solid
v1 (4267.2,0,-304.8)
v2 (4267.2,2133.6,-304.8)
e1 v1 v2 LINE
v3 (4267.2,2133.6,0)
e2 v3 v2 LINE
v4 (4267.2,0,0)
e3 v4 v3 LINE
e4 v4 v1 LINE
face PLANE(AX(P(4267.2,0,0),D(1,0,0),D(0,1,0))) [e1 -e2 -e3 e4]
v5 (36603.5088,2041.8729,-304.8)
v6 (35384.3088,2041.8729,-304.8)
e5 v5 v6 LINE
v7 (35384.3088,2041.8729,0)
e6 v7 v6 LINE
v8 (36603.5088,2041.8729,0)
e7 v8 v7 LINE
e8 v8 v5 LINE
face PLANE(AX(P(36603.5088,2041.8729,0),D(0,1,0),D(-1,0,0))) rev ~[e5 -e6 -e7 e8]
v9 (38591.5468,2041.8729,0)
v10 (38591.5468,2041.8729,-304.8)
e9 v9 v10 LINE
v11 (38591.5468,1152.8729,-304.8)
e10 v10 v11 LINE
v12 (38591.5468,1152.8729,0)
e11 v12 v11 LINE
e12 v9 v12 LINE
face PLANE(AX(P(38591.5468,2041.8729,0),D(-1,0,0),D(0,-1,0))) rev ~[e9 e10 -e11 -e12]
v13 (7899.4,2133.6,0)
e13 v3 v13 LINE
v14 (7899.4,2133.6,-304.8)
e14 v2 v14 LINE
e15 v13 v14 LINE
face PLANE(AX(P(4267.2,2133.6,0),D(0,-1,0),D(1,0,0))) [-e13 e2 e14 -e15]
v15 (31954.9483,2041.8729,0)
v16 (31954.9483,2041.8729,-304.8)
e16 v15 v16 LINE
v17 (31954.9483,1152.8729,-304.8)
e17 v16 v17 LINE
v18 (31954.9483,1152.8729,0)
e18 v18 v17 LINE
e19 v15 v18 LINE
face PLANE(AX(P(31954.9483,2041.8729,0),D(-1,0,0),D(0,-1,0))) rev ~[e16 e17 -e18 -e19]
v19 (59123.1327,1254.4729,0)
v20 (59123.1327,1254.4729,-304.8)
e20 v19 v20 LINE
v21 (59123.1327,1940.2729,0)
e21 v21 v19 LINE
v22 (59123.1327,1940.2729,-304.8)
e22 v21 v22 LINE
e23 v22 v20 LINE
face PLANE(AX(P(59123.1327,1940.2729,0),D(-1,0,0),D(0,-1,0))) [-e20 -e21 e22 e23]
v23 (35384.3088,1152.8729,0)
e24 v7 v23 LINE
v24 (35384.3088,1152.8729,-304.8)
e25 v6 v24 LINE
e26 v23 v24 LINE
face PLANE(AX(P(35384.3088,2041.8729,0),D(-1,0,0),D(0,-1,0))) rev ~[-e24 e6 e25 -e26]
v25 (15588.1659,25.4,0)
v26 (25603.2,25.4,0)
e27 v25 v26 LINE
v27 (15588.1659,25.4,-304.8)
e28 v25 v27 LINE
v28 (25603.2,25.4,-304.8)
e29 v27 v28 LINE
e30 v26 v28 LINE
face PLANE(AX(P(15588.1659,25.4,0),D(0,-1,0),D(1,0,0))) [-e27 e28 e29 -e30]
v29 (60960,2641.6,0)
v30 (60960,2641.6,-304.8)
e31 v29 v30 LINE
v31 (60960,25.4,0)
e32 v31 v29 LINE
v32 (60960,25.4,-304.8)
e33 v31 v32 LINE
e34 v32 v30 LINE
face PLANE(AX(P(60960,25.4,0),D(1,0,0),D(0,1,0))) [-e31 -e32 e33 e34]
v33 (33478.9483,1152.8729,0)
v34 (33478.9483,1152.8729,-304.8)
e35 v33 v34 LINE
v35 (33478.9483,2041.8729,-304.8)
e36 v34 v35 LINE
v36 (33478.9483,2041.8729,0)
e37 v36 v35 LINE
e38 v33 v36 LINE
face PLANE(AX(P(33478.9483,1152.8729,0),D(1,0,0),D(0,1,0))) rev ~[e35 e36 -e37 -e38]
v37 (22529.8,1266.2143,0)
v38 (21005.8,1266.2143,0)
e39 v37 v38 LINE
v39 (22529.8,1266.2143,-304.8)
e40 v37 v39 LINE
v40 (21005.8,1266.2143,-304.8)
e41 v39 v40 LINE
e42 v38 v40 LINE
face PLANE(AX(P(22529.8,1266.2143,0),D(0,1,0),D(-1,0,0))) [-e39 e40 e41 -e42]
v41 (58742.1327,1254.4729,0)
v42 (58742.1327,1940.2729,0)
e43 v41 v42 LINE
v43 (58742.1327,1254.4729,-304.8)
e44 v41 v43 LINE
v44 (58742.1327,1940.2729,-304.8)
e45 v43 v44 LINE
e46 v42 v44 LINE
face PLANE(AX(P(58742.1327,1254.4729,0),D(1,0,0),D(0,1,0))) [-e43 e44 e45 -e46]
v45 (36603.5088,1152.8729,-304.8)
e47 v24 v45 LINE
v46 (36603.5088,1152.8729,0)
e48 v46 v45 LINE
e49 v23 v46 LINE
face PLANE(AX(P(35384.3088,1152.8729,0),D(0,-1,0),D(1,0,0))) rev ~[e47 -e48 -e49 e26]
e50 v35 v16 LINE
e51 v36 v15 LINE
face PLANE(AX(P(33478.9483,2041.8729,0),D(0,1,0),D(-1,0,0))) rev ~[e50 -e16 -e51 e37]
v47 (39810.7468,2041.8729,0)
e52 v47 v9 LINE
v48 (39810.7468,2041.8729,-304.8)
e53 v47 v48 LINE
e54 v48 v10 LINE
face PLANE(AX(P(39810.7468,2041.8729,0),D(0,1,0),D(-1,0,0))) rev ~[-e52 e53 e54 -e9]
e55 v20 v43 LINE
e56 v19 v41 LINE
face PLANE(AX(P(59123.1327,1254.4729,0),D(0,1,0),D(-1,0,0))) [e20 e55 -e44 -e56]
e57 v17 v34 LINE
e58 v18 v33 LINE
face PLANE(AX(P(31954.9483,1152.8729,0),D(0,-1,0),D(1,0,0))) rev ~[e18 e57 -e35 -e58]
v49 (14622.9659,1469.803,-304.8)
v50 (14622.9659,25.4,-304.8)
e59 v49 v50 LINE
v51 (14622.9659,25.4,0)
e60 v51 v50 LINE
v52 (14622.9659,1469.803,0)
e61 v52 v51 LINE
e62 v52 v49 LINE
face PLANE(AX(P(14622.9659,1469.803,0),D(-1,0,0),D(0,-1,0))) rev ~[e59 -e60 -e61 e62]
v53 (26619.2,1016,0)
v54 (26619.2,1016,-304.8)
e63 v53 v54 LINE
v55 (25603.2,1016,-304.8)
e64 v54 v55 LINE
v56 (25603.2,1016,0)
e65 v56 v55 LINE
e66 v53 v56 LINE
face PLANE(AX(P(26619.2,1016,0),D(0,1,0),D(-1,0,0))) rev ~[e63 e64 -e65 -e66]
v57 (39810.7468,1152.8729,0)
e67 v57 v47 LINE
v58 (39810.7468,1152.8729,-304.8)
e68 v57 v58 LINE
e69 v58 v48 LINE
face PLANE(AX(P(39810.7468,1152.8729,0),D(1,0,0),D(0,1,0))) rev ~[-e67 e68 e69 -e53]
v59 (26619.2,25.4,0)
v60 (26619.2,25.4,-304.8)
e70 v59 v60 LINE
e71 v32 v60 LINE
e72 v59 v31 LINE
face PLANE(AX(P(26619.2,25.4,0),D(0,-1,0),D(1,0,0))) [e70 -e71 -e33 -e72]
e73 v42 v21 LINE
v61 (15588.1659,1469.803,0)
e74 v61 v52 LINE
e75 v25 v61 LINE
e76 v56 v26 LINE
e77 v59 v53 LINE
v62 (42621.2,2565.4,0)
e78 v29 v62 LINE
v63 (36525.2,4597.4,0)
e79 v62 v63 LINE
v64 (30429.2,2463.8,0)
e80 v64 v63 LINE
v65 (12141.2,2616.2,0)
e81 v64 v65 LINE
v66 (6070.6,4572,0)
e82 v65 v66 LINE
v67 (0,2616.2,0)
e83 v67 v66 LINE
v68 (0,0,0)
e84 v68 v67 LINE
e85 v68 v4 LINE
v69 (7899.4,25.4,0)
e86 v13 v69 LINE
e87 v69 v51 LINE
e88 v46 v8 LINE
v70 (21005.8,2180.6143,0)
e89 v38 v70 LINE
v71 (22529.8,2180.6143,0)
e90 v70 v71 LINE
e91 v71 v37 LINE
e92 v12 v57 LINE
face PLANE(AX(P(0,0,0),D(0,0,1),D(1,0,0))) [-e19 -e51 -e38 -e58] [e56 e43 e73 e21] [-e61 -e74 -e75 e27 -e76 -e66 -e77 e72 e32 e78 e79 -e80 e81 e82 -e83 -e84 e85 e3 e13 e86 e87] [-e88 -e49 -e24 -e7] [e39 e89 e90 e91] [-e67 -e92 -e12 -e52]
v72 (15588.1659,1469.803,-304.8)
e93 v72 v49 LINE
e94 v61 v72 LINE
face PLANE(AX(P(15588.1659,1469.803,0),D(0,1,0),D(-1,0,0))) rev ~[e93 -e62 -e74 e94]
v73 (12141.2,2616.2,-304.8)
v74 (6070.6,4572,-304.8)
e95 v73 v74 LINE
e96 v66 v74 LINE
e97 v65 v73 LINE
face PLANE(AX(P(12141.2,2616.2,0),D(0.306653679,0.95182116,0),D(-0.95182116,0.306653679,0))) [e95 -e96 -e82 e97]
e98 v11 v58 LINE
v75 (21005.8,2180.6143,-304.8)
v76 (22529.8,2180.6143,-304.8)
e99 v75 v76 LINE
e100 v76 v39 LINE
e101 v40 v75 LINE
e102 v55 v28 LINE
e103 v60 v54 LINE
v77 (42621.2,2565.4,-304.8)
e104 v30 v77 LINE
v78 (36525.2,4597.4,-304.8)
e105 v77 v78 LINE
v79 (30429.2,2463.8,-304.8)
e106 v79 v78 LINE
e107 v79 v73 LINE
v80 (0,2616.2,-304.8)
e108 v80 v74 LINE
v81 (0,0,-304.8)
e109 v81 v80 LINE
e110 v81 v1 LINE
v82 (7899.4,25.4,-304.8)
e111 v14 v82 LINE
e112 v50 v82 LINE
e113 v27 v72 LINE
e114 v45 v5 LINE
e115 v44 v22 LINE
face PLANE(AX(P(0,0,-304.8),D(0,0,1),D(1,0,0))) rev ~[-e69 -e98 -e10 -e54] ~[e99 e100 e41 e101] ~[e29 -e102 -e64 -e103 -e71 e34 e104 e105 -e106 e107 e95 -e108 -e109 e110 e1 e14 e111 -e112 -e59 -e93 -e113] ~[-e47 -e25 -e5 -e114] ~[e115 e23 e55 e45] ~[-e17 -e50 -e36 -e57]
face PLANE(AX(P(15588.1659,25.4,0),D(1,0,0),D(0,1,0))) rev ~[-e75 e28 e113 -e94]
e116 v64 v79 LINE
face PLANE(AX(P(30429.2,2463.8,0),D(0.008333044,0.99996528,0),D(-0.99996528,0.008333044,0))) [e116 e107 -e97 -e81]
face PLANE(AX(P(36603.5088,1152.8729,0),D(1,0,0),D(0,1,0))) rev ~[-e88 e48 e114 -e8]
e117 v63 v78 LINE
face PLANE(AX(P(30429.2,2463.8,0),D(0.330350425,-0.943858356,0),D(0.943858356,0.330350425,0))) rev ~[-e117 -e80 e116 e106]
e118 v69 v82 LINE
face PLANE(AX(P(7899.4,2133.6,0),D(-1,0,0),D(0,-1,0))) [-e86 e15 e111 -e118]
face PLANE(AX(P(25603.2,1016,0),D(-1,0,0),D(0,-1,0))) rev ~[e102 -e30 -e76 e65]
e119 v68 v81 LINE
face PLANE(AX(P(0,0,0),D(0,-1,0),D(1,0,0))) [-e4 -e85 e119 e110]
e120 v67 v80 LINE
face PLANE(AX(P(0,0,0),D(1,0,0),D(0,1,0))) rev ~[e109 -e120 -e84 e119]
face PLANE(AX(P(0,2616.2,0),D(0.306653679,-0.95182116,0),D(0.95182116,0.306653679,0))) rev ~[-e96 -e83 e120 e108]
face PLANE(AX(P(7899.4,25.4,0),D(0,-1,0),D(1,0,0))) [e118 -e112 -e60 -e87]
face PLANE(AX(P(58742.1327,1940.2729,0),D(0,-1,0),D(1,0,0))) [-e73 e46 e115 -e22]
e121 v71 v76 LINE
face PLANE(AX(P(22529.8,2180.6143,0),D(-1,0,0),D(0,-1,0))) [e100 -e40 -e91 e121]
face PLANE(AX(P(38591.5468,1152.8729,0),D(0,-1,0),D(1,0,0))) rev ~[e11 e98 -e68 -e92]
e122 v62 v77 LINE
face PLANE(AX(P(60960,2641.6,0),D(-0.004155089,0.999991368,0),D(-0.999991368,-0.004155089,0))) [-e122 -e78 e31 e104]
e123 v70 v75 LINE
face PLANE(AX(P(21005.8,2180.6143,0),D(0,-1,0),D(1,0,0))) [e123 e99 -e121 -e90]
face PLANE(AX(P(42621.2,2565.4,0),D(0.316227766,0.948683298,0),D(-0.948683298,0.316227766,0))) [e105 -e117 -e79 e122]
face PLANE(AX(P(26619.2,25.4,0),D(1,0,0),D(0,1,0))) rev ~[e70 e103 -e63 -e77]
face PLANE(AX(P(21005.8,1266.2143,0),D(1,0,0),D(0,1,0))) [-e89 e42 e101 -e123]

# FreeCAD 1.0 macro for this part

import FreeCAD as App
import Part
import Sketcher
Q = App.Units.Quantity

doc = App.newDocument("Part")
body = doc.addObject("PartDesign::Body", "Body")

# Sketch on XY plane
sketch1 = body.newObject("Sketcher::SketchObject", "Sketch")
sketch1.AttachmentSupport = (doc.getObject("XY_Plane"), [""])
sketch1.MapMode = "FlatFace"
sketch1.addGeometry([
    Part.LineSegment(App.Vector(0, 2616, 0), App.Vector(0, 0, 0)),  # 0
    Part.LineSegment(App.Vector(0, 0, 0), App.Vector(4267, 0, 0)),  # 1
    Part.LineSegment(App.Vector(4267, 0, 0), App.Vector(4267, 2134, 0)),  # 2
    Part.LineSegment(App.Vector(4267, 2134, 0), App.Vector(7899, 2134, 0)),  # 3
    Part.LineSegment(App.Vector(7899, 2134, 0), App.Vector(7899, 25, 0)),  # 4
    Part.LineSegment(App.Vector(7899, 25, 0), App.Vector(14623, 25, 0)),  # 5
    Part.LineSegment(App.Vector(14623, 25, 0), App.Vector(14623, 1470, 0)),  # 6
    Part.LineSegment(App.Vector(14623, 1470, 0), App.Vector(15588, 1470, 0)),  # 7
    Part.LineSegment(App.Vector(15588, 1470, 0), App.Vector(15588, 25, 0)),  # 8
    Part.LineSegment(App.Vector(15588, 25, 0), App.Vector(25603, 25, 0)),  # 9
    Part.LineSegment(App.Vector(25603, 25, 0), App.Vector(25603, 1016, 0)),  # 10
    Part.LineSegment(App.Vector(25603, 1016, 0), App.Vector(26619, 1016, 0)),  # 11
    Part.LineSegment(App.Vector(26619, 1016, 0), App.Vector(26619, 25, 0)),  # 12
    Part.LineSegment(App.Vector(26619, 25, 0), App.Vector(60960, 25, 0)),  # 13
    Part.LineSegment(App.Vector(60960, 25, 0), App.Vector(60960, 2642, 0)),  # 14
    Part.LineSegment(App.Vector(60960, 2642, 0), App.Vector(42621, 2565, 0)),  # 15
    Part.LineSegment(App.Vector(42621, 2565, 0), App.Vector(36525, 4597, 0)),  # 16
    Part.LineSegment(App.Vector(36525, 4597, 0), App.Vector(30429, 2464, 0)),  # 17
    Part.LineSegment(App.Vector(30429, 2464, 0), App.Vector(12141, 2616, 0)),  # 18
    Part.LineSegment(App.Vector(12141, 2616, 0), App.Vector(6071, 4572, 0)),  # 19
    Part.LineSegment(App.Vector(6071, 4572, 0), App.Vector(0, 2616, 0)),  # 20
    Part.LineSegment(App.Vector(21006, 2181, 0), App.Vector(22530, 2181, 0)),  # 21
    Part.LineSegment(App.Vector(22530, 2181, 0), App.Vector(22530, 1266, 0)),  # 22
    Part.LineSegment(App.Vector(22530, 1266, 0), App.Vector(21006, 1266, 0)),  # 23
    Part.LineSegment(App.Vector(21006, 1266, 0), App.Vector(21006, 2181, 0)),  # 24
    Part.LineSegment(App.Vector(38592, 1153, 0), App.Vector(38592, 2042, 0)),  # 25
    Part.LineSegment(App.Vector(38592, 2042, 0), App.Vector(39811, 2042, 0)),  # 26
    Part.LineSegment(App.Vector(39811, 2042, 0), App.Vector(39811, 1153, 0)),  # 27
    Part.LineSegment(App.Vector(39811, 1153, 0), App.Vector(38592, 1153, 0)),  # 28
    Part.LineSegment(App.Vector(33479, 1153, 0), App.Vector(31955, 1153, 0)),  # 29
    Part.LineSegment(App.Vector(31955, 1153, 0), App.Vector(31955, 2042, 0)),  # 30
    Part.LineSegment(App.Vector(31955, 2042, 0), App.Vector(33479, 2042, 0)),  # 31
    Part.LineSegment(App.Vector(33479, 2042, 0), App.Vector(33479, 1153, 0)),  # 32
    Part.LineSegment(App.Vector(36604, 1153, 0), App.Vector(35384, 1153, 0)),  # 33
    Part.LineSegment(App.Vector(35384, 1153, 0), App.Vector(35384, 2042, 0)),  # 34
    Part.LineSegment(App.Vector(35384, 2042, 0), App.Vector(36604, 2042, 0)),  # 35
    Part.LineSegment(App.Vector(36604, 2042, 0), App.Vector(36604, 1153, 0)),  # 36
    Part.LineSegment(App.Vector(59123, 1254, 0), App.Vector(58742, 1254, 0)),  # 37
    Part.LineSegment(App.Vector(58742, 1254, 0), App.Vector(58742, 1940, 0)),  # 38
    Part.LineSegment(App.Vector(58742, 1940, 0), App.Vector(59123, 1940, 0)),  # 39
    Part.LineSegment(App.Vector(59123, 1940, 0), App.Vector(59123, 1254, 0)),  # 40
], False)
sketch1.addConstraint([
    Sketcher.Constraint("Coincident", 0, 2, 1, 1),
    Sketcher.Constraint("Coincident", 1, 2, 2, 1),
    Sketcher.Constraint("Coincident", 2, 2, 3, 1),
    Sketcher.Constraint("Coincident", 3, 2, 4, 1),
    Sketcher.Constraint("Coincident", 4, 2, 5, 1),
    Sketcher.Constraint("Coincident", 5, 2, 6, 1),
    Sketcher.Constraint("Coincident", 6, 2, 7, 1),
    Sketcher.Constraint("Coincident", 7, 2, 8, 1),
    Sketcher.Constraint("Coincident", 8, 2, 9, 1),
    Sketcher.Constraint("Coincident", 9, 2, 10, 1),
    Sketcher.Constraint("Coincident", 10, 2, 11, 1),
    Sketcher.Constraint("Coincident", 11, 2, 12, 1),
    Sketcher.Constraint("Coincident", 12, 2, 13, 1),
    Sketcher.Constraint("Coincident", 13, 2, 14, 1),
    Sketcher.Constraint("Coincident", 14, 2, 15, 1),
    Sketcher.Constraint("Coincident", 15, 2, 16, 1),
    Sketcher.Constraint("Coincident", 16, 2, 17, 1),
    Sketcher.Constraint("Coincident", 17, 2, 18, 1),
    Sketcher.Constraint("Coincident", 18, 2, 19, 1),
    Sketcher.Constraint("Coincident", 19, 2, 20, 1),
    Sketcher.Constraint("Coincident", 20, 2, 0, 1),
    Sketcher.Constraint("Coincident", 21, 2, 22, 1),
    Sketcher.Constraint("Coincident", 22, 2, 23, 1),
    Sketcher.Constraint("Coincident", 23, 2, 24, 1),
    Sketcher.Constraint("Coincident", 24, 2, 21, 1),
    Sketcher.Constraint("Coincident", 25, 2, 26, 1),
    Sketcher.Constraint("Coincident", 26, 2, 27, 1),
    Sketcher.Constraint("Coincident", 27, 2, 28, 1),
    Sketcher.Constraint("Coincident", 28, 2, 25, 1),
    Sketcher.Constraint("Coincident", 29, 2, 30, 1),
    Sketcher.Constraint("Coincident", 30, 2, 31, 1),
    Sketcher.Constraint("Coincident", 31, 2, 32, 1),
    Sketcher.Constraint("Coincident", 32, 2, 29, 1),
    Sketcher.Constraint("Coincident", 33, 2, 34, 1),
    Sketcher.Constraint("Coincident", 34, 2, 35, 1),
    Sketcher.Constraint("Coincident", 35, 2, 36, 1),
    Sketcher.Constraint("Coincident", 36, 2, 33, 1),
    Sketcher.Constraint("Coincident", 37, 2, 38, 1),
    Sketcher.Constraint("Coincident", 38, 2, 39, 1),
    Sketcher.Constraint("Coincident", 39, 2, 40, 1),
    Sketcher.Constraint("Coincident", 40, 2, 37, 1),
    Sketcher.Constraint("Vertical", 0),
    Sketcher.Constraint("Horizontal", 1),
    Sketcher.Constraint("Vertical", 2),
    Sketcher.Constraint("Horizontal", 3),
    Sketcher.Constraint("Vertical", 4),
    Sketcher.Constraint("Horizontal", 5),
    Sketcher.Constraint("Vertical", 6),
    Sketcher.Constraint("Horizontal", 7),
    Sketcher.Constraint("Vertical", 8),
    Sketcher.Constraint("Horizontal", 9),
    Sketcher.Constraint("Vertical", 10),
    Sketcher.Constraint("Horizontal", 11),
    Sketcher.Constraint("Vertical", 12),
    Sketcher.Constraint("Horizontal", 13),
    Sketcher.Constraint("Vertical", 14),
    Sketcher.Constraint("Horizontal", 21),
    Sketcher.Constraint("Vertical", 22),
    Sketcher.Constraint("Horizontal", 23),
    Sketcher.Constraint("Vertical", 24),
    Sketcher.Constraint("Vertical", 25),
    Sketcher.Constraint("Horizontal", 26),
    Sketcher.Constraint("Vertical", 27),
    Sketcher.Constraint("Horizontal", 28),
    Sketcher.Constraint("Horizontal", 29),
    Sketcher.Constraint("Vertical", 30),
    Sketcher.Constraint("Horizontal", 31),
    Sketcher.Constraint("Vertical", 32),
    Sketcher.Constraint("Horizontal", 33),
    Sketcher.Constraint("Vertical", 34),
    Sketcher.Constraint("Horizontal", 35),
    Sketcher.Constraint("Vertical", 36),
    Sketcher.Constraint("Horizontal", 37),
    Sketcher.Constraint("Vertical", 38),
    Sketcher.Constraint("Horizontal", 39),
    Sketcher.Constraint("Vertical", 40),
    Sketcher.Constraint("Coincident", 0, 2, -1, 1),
    Sketcher.Constraint("Horizontal", 5, 2, 8, 2),
    Sketcher.Constraint("Horizontal", 9, 2, 12, 2),
    Sketcher.Constraint("Horizontal", 18, 2, 20, 2),
    Sketcher.Constraint("Horizontal", 28, 2, 29, 2),
    Sketcher.Constraint("Horizontal", 26, 2, 30, 2),
    Sketcher.Constraint("Horizontal", 32, 2, 33, 2),
    Sketcher.Constraint("Horizontal", 31, 2, 34, 2),
    Sketcher.Constraint("Equal", 23, 29),
    Sketcher.Constraint("Equal", 28, 33),
    Sketcher.Constraint("Equal", 0, 14),
    Sketcher.Constraint("Equal", 19, 20),
    Sketcher.Constraint("DistanceX", 1, 1, 1, 2, Q("168 in")),
    Sketcher.Constraint("DistanceX", 3, 1, 3, 2, Q("143 in")),
    Sketcher.Constraint("DistanceX", 7, 1, 7, 2, Q("38 in")),
    Sketcher.Constraint("DistanceX", 11, 1, 11, 2, Q("40 in")),
    Sketcher.Constraint("DistanceX", 21, 1, 21, 2, Q("60 in")),
    Sketcher.Constraint("DistanceX", 26, 1, 26, 2, Q("48 in")),
    Sketcher.Constraint("DistanceX", 37, 2, 37, 1, Q("15 in")),
    Sketcher.Constraint("DistanceY", 0, 2, 0, 1, Q("103 in")),
    Sketcher.Constraint("DistanceY", 2, 1, 2, 2, Q("84 in")),
    Sketcher.Constraint("DistanceY", 10, 1, 10, 2, Q("39 in")),
    Sketcher.Constraint("DistanceY", 22, 2, 22, 1, Q("36 in")),
    Sketcher.Constraint("DistanceY", 25, 1, 25, 2, Q("35 in")),
    Sketcher.Constraint("DistanceY", 38, 1, 38, 2, Q("27 in")),
    Sketcher.Constraint("DistanceY", -1, 1, 10, 2, Q("40 in")),
    Sketcher.Constraint("DistanceX", -1, 1, 13, 2, Q("2400 in")),
    Sketcher.Constraint("DistanceY", -1, 1, 19, 2, Q("180 in")),
    Sketcher.Constraint("DistanceY", 12, 2, 15, 2, Q("100 in")),
    Sketcher.Constraint("DistanceX", 15, 2, 14, 2, Q("722 in")),
    Sketcher.Constraint("DistanceY", 12, 2, 16, 2, Q("180 in")),
    Sketcher.Constraint("DistanceX", 11, 2, 17, 2, Q("150 in")),
    Sketcher.Constraint("DistanceY", 12, 2, 17, 2, Q("96 in")),
    Sketcher.Constraint("DistanceX", 3, 2, 18, 2, Q("167 in")),
    Sketcher.Constraint("DistanceX", 21, 2, 10, 2, Q("121 in")),
    Sketcher.Constraint("DistanceX", 13, 1, 13, 2, Q("1352 in")),
    Sketcher.Constraint("DistanceX", -1, 1, 16, 2, Q("1438 in")),
    Sketcher.Constraint("DistanceY", 27, 2, 37, 2, Q("4 in")),
    Sketcher.Constraint("DistanceX", 5, 1, 5, 2, 6723.566),
    Sketcher.Constraint("DistanceY", 6, 1, 6, 2, 1444.403),
    Sketcher.Constraint("DistanceY", -1, 1, 25, 2, Q("80.3887 in")),
    Sketcher.Constraint("DistanceX", -1, 1, 37, 2, Q("2312.6824 in")),
    Sketcher.Constraint("DistanceY", 7, 2, 21, 2, Q("27.9847 in")),
    Sketcher.Constraint("DistanceX", 31, 2, 25, 2, Q("201.2834 in")),
    Sketcher.Constraint("DistanceX", 32, 2, 33, 2, Q("75.0142 in")),
    Sketcher.Constraint("DistanceX", -1, 1, 25, 2, 38591.5468),
])
pad1 = body.newObject("PartDesign::Pad", "Pad")
pad1.Profile = sketch1
pad1.Length = Q("12 in")
pad1.Reversed = True

doc.recompute()
